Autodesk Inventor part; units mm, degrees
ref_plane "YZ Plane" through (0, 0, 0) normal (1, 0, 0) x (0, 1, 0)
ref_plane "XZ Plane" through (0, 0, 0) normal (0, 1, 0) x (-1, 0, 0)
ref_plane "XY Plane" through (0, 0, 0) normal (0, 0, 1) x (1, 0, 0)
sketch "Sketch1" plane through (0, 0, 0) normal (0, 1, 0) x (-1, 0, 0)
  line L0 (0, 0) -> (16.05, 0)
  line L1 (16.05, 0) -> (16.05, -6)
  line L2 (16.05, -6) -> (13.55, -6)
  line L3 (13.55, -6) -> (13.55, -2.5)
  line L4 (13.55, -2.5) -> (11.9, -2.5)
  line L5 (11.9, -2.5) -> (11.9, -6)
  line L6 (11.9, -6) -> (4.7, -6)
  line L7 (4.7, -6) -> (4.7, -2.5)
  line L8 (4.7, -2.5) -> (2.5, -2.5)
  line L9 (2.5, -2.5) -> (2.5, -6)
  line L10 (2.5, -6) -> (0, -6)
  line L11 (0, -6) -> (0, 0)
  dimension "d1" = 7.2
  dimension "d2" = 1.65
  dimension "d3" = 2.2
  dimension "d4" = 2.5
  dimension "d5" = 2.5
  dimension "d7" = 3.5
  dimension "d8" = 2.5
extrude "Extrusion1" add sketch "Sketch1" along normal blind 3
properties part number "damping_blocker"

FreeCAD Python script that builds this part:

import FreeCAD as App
import Part
import Sketcher

V = App.Vector
Q = App.Units.Quantity


def add_polygon(sketch, points):
    """Adds a closed chain of lines whose ends are joined by coincident constraints."""
    first, n = sketch.GeometryCount, len(points)
    for a, b in zip(points, points[1:] + points[:1]):
        sketch.addGeometry(Part.LineSegment(App.Vector(*a, 0), App.Vector(*b, 0)), False)
    for i in range(n):
        sketch.addConstraint(Sketcher.Constraint("Coincident", first + i, 2, first + (i + 1) % n, 1))

doc = App.newDocument("Part")
body = doc.addObject("PartDesign::Body", "Body")

# Sketch on XZ plane
sketch1 = doc.addObject("Sketcher::SketchObject", "Sketch")
body.addObject(sketch1)
sketch1.AttachmentSupport = (doc.XZ_Plane, [""])
sketch1.MapMode = "FlatFace"
add_polygon(sketch1, [(-16.05, 0), (0, 0), (0, -6), (-2.5, -6), (-2.5, -2.5), (-4.7, -2.5), (-4.7, -6), (-11.9, -6), (-11.9, -2.5), (-13.55, -2.5), (-13.55, -6), (-16.05, -6)])  # lines 0-11
sketch1.addConstraint([
    Sketcher.Constraint("Horizontal", 0),
    Sketcher.Constraint("Vertical", 1),
    Sketcher.Constraint("Horizontal", 2),
    Sketcher.Constraint("Vertical", 3),
    Sketcher.Constraint("Horizontal", 4),
    Sketcher.Constraint("Vertical", 5),
    Sketcher.Constraint("Horizontal", 6),
    Sketcher.Constraint("Vertical", 7),
    Sketcher.Constraint("Horizontal", 8),
    Sketcher.Constraint("Vertical", 9),
    Sketcher.Constraint("Horizontal", 10),
    Sketcher.Constraint("Vertical", 11),
    Sketcher.Constraint("Coincident", 0, 2, -1, 1),
    Sketcher.Constraint("Horizontal", 2, 2, 5, 2),
    Sketcher.Constraint("Horizontal", 4, 2, 7, 2),
    Sketcher.Constraint("Horizontal", 6, 2, 9, 2),
    Sketcher.Constraint("Equal", 2, 10),
    Sketcher.Constraint("DistanceX", 2, 2, 2, 1, Q("2.5 mm")),
    Sketcher.Constraint("DistanceX", 4, 2, 4, 1, Q("2.2 mm")),
    Sketcher.Constraint("DistanceX", 6, 2, 6, 1, Q("7.2 mm")),
    Sketcher.Constraint("DistanceY", 3, 1, 3, 2, Q("3.5 mm")),
    Sketcher.Constraint("DistanceX", 8, 2, 8, 1, Q("1.65 mm")),
    Sketcher.Constraint("DistanceY", 3, 2, -1, 1, Q("2.5 mm")),
])
pad1 = doc.addObject("PartDesign::Pad", "Pad")
body.addObject(pad1)
pad1.Profile = sketch1
pad1.Length = 3
pad1.Reversed = True

doc.recompute()
